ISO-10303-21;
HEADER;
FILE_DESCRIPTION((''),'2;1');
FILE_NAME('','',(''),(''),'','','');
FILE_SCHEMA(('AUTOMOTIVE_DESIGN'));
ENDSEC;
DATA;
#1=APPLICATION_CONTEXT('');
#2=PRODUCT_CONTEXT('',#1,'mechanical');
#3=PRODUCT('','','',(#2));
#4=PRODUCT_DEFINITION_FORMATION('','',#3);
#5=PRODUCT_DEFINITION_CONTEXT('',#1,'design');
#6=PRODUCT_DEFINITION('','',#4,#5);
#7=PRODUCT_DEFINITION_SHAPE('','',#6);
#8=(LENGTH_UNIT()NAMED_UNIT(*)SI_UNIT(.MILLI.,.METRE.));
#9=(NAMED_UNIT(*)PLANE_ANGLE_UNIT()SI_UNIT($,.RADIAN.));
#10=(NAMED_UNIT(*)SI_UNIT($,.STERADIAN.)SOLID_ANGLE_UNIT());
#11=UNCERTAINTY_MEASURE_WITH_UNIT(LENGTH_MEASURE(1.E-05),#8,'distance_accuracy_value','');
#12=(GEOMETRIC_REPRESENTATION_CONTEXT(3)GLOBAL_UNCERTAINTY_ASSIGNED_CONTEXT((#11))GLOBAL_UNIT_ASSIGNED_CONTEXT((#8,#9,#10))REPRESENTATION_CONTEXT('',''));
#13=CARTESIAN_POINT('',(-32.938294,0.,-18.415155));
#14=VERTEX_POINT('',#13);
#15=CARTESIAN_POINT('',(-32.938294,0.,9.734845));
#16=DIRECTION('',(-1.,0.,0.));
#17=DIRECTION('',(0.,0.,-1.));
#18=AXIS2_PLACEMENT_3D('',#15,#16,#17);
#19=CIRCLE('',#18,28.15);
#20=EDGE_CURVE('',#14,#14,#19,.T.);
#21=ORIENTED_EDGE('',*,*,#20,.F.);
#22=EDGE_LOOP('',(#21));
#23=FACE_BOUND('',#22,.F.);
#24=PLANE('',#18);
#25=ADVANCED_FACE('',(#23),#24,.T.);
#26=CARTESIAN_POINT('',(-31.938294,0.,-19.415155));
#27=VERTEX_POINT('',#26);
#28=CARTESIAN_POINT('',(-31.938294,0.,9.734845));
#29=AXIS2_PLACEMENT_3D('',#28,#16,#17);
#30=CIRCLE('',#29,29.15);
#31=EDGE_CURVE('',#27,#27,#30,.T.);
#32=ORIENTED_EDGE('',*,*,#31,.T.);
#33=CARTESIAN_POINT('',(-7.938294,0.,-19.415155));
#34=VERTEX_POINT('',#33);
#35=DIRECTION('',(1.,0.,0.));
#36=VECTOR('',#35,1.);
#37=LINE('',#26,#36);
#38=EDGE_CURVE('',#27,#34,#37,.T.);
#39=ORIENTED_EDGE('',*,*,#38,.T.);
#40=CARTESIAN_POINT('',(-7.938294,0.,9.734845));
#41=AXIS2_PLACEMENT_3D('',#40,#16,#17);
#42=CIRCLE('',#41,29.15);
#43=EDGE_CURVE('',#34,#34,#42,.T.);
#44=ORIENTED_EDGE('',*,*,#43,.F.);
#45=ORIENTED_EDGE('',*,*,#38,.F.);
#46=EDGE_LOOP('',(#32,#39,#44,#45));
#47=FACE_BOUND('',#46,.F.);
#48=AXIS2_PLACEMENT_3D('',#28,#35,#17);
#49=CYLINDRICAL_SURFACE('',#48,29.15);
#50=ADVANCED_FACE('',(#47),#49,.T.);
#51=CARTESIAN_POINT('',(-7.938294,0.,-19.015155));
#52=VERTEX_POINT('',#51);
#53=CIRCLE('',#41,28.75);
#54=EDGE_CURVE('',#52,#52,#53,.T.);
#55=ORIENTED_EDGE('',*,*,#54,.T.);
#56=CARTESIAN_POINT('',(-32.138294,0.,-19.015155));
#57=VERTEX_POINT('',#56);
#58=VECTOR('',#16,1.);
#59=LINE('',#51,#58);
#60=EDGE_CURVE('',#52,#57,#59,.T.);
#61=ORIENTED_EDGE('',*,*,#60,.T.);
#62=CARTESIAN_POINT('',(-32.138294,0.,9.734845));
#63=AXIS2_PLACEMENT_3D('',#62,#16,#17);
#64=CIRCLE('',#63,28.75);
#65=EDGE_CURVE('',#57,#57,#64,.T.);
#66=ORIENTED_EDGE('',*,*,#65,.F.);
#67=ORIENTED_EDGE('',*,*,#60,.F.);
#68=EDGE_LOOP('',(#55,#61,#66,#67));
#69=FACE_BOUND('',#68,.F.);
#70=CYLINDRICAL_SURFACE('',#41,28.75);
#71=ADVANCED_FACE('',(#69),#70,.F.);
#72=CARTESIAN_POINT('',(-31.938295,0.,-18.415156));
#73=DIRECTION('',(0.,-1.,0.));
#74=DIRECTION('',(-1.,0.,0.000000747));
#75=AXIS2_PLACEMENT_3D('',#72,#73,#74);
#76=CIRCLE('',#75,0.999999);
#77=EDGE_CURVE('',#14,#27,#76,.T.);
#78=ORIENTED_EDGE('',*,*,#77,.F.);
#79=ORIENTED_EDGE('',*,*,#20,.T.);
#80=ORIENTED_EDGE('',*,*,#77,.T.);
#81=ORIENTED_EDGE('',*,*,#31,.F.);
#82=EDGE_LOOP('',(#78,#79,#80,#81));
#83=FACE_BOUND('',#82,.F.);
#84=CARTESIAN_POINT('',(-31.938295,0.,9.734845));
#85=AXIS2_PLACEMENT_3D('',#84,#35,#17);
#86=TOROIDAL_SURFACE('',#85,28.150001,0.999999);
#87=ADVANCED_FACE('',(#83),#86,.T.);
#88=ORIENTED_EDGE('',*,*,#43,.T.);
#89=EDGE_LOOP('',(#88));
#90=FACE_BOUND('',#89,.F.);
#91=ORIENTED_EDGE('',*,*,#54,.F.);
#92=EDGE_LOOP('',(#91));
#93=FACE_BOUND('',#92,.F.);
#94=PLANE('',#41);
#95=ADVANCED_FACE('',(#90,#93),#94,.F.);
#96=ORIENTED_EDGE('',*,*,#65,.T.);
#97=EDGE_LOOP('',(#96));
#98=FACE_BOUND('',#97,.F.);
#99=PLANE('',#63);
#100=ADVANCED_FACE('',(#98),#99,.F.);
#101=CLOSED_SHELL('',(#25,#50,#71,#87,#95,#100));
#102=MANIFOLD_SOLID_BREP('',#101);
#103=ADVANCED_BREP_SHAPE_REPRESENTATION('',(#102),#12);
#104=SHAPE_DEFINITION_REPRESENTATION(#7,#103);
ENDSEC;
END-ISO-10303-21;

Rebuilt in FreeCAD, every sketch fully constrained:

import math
import FreeCAD as App
import Part
import Sketcher

V = App.Vector
Q = App.Units.Quantity

doc = App.newDocument("Part")
params = doc.addObject("Spreadsheet::Sheet", "Params")
for row, (alias, value) in enumerate([
    ("sketch1_radius", "0.999999 mm"),
    ("sketch1_width", "24 mm"),
    ("sketch1_width2", "24.2 mm"),
    ("sketch1_height", "0.4 mm"),
    ("sketch1_height2", "28.75 mm"),
    ("revolution_angle", "360 deg"),
], start=1):
    params.set(f"A{row}", alias)
    params.set(f"B{row}", "=" + value)
    params.setAlias(f"B{row}", alias)

body = doc.addObject("PartDesign::Body", "Body")

# Sketch on XZ plane
sketch1 = body.newObject("Sketcher::SketchObject", "Sketch")
sketch1.AttachmentSupport = (doc.getObject("XZ_Plane"), [""])
sketch1.MapMode = "FlatFace"
sketch1.addGeometry([
    Part.ArcOfCircle(Part.Circle(V(-31.94, -18.42, 0), V(0, 0, 1), 1), math.radians(180), math.radians(270)),  # 0
    Part.LineSegment(V(-31.94, -19.42, 0), V(-7.94, -19.42, 0)),  # 1
    Part.LineSegment(V(-7.94, -19.42, 0), V(-7.94, -19.02, 0)),  # 2
    Part.LineSegment(V(-7.94, -19.02, 0), V(-32.14, -19.02, 0)),  # 3
    Part.LineSegment(V(-32.14, -19.02, 0), V(-32.14, 9.73, 0)),  # 4
    Part.LineSegment(V(-32.14, 9.73, 0), V(-32.94, 9.73, 0)),  # 5
    Part.LineSegment(V(-32.94, 9.73, 0), V(-32.94, -18.42, 0)),  # 6
], False)
sketch1.addGeometry(Part.LineSegment(V(-7.94, 9.73, 0), V(-32.94, 9.73, 0)), True)  # axis
sketch1.addConstraint([
    Sketcher.Constraint("Tangent", 0, 2, 1, 1),
    Sketcher.Constraint("Coincident", 1, 2, 2, 1),
    Sketcher.Constraint("Coincident", 2, 2, 3, 1),
    Sketcher.Constraint("Coincident", 3, 2, 4, 1),
    Sketcher.Constraint("Coincident", 4, 2, 5, 1),
    Sketcher.Constraint("Coincident", 5, 2, 6, 1),
    Sketcher.Constraint("Tangent", 6, 2, 0, 1),
    Sketcher.Constraint("Horizontal", 1),
    Sketcher.Constraint("Vertical", 2),
    Sketcher.Constraint("Horizontal", 3),
    Sketcher.Constraint("Vertical", 4),
    Sketcher.Constraint("Horizontal", 5),
    Sketcher.Constraint("Vertical", 6),
    Sketcher.Constraint("Horizontal", 7),
    Sketcher.Constraint("Coincident", 7, 2, 5, 2),
    Sketcher.Constraint("Vertical", 2, 2, 7, 1),
    Sketcher.Constraint("Radius", 0, Q("0.999999 mm")),
    Sketcher.Constraint("DistanceX", 1, 1, 1, 2, Q("24 mm")),
    Sketcher.Constraint("DistanceX", 3, 2, 3, 1, Q("24.2 mm")),
    Sketcher.Constraint("DistanceY", 2, 1, 2, 2, Q("0.4 mm")),
    Sketcher.Constraint("DistanceY", 4, 1, 4, 2, Q("28.75 mm")),
    Sketcher.Constraint("DistanceX", 0, 3, -1, 1, Q("31.938295 mm")),
    Sketcher.Constraint("DistanceY", 0, 3, -1, 1, Q("18.415156 mm")),
])
sketch1.setExpression("Constraints[16]", "Params.sketch1_radius")
sketch1.setExpression("Constraints[17]", "Params.sketch1_width")
sketch1.setExpression("Constraints[18]", "Params.sketch1_width2")
sketch1.setExpression("Constraints[19]", "Params.sketch1_height")
sketch1.setExpression("Constraints[20]", "Params.sketch1_height2")
revolution = body.newObject("PartDesign::Revolution", "Revolution")
revolution.Profile = sketch1
revolution.ReferenceAxis = (sketch1, ["Axis0"])
revolution.setExpression("Angle", "Params.revolution_angle")

doc.recompute()
